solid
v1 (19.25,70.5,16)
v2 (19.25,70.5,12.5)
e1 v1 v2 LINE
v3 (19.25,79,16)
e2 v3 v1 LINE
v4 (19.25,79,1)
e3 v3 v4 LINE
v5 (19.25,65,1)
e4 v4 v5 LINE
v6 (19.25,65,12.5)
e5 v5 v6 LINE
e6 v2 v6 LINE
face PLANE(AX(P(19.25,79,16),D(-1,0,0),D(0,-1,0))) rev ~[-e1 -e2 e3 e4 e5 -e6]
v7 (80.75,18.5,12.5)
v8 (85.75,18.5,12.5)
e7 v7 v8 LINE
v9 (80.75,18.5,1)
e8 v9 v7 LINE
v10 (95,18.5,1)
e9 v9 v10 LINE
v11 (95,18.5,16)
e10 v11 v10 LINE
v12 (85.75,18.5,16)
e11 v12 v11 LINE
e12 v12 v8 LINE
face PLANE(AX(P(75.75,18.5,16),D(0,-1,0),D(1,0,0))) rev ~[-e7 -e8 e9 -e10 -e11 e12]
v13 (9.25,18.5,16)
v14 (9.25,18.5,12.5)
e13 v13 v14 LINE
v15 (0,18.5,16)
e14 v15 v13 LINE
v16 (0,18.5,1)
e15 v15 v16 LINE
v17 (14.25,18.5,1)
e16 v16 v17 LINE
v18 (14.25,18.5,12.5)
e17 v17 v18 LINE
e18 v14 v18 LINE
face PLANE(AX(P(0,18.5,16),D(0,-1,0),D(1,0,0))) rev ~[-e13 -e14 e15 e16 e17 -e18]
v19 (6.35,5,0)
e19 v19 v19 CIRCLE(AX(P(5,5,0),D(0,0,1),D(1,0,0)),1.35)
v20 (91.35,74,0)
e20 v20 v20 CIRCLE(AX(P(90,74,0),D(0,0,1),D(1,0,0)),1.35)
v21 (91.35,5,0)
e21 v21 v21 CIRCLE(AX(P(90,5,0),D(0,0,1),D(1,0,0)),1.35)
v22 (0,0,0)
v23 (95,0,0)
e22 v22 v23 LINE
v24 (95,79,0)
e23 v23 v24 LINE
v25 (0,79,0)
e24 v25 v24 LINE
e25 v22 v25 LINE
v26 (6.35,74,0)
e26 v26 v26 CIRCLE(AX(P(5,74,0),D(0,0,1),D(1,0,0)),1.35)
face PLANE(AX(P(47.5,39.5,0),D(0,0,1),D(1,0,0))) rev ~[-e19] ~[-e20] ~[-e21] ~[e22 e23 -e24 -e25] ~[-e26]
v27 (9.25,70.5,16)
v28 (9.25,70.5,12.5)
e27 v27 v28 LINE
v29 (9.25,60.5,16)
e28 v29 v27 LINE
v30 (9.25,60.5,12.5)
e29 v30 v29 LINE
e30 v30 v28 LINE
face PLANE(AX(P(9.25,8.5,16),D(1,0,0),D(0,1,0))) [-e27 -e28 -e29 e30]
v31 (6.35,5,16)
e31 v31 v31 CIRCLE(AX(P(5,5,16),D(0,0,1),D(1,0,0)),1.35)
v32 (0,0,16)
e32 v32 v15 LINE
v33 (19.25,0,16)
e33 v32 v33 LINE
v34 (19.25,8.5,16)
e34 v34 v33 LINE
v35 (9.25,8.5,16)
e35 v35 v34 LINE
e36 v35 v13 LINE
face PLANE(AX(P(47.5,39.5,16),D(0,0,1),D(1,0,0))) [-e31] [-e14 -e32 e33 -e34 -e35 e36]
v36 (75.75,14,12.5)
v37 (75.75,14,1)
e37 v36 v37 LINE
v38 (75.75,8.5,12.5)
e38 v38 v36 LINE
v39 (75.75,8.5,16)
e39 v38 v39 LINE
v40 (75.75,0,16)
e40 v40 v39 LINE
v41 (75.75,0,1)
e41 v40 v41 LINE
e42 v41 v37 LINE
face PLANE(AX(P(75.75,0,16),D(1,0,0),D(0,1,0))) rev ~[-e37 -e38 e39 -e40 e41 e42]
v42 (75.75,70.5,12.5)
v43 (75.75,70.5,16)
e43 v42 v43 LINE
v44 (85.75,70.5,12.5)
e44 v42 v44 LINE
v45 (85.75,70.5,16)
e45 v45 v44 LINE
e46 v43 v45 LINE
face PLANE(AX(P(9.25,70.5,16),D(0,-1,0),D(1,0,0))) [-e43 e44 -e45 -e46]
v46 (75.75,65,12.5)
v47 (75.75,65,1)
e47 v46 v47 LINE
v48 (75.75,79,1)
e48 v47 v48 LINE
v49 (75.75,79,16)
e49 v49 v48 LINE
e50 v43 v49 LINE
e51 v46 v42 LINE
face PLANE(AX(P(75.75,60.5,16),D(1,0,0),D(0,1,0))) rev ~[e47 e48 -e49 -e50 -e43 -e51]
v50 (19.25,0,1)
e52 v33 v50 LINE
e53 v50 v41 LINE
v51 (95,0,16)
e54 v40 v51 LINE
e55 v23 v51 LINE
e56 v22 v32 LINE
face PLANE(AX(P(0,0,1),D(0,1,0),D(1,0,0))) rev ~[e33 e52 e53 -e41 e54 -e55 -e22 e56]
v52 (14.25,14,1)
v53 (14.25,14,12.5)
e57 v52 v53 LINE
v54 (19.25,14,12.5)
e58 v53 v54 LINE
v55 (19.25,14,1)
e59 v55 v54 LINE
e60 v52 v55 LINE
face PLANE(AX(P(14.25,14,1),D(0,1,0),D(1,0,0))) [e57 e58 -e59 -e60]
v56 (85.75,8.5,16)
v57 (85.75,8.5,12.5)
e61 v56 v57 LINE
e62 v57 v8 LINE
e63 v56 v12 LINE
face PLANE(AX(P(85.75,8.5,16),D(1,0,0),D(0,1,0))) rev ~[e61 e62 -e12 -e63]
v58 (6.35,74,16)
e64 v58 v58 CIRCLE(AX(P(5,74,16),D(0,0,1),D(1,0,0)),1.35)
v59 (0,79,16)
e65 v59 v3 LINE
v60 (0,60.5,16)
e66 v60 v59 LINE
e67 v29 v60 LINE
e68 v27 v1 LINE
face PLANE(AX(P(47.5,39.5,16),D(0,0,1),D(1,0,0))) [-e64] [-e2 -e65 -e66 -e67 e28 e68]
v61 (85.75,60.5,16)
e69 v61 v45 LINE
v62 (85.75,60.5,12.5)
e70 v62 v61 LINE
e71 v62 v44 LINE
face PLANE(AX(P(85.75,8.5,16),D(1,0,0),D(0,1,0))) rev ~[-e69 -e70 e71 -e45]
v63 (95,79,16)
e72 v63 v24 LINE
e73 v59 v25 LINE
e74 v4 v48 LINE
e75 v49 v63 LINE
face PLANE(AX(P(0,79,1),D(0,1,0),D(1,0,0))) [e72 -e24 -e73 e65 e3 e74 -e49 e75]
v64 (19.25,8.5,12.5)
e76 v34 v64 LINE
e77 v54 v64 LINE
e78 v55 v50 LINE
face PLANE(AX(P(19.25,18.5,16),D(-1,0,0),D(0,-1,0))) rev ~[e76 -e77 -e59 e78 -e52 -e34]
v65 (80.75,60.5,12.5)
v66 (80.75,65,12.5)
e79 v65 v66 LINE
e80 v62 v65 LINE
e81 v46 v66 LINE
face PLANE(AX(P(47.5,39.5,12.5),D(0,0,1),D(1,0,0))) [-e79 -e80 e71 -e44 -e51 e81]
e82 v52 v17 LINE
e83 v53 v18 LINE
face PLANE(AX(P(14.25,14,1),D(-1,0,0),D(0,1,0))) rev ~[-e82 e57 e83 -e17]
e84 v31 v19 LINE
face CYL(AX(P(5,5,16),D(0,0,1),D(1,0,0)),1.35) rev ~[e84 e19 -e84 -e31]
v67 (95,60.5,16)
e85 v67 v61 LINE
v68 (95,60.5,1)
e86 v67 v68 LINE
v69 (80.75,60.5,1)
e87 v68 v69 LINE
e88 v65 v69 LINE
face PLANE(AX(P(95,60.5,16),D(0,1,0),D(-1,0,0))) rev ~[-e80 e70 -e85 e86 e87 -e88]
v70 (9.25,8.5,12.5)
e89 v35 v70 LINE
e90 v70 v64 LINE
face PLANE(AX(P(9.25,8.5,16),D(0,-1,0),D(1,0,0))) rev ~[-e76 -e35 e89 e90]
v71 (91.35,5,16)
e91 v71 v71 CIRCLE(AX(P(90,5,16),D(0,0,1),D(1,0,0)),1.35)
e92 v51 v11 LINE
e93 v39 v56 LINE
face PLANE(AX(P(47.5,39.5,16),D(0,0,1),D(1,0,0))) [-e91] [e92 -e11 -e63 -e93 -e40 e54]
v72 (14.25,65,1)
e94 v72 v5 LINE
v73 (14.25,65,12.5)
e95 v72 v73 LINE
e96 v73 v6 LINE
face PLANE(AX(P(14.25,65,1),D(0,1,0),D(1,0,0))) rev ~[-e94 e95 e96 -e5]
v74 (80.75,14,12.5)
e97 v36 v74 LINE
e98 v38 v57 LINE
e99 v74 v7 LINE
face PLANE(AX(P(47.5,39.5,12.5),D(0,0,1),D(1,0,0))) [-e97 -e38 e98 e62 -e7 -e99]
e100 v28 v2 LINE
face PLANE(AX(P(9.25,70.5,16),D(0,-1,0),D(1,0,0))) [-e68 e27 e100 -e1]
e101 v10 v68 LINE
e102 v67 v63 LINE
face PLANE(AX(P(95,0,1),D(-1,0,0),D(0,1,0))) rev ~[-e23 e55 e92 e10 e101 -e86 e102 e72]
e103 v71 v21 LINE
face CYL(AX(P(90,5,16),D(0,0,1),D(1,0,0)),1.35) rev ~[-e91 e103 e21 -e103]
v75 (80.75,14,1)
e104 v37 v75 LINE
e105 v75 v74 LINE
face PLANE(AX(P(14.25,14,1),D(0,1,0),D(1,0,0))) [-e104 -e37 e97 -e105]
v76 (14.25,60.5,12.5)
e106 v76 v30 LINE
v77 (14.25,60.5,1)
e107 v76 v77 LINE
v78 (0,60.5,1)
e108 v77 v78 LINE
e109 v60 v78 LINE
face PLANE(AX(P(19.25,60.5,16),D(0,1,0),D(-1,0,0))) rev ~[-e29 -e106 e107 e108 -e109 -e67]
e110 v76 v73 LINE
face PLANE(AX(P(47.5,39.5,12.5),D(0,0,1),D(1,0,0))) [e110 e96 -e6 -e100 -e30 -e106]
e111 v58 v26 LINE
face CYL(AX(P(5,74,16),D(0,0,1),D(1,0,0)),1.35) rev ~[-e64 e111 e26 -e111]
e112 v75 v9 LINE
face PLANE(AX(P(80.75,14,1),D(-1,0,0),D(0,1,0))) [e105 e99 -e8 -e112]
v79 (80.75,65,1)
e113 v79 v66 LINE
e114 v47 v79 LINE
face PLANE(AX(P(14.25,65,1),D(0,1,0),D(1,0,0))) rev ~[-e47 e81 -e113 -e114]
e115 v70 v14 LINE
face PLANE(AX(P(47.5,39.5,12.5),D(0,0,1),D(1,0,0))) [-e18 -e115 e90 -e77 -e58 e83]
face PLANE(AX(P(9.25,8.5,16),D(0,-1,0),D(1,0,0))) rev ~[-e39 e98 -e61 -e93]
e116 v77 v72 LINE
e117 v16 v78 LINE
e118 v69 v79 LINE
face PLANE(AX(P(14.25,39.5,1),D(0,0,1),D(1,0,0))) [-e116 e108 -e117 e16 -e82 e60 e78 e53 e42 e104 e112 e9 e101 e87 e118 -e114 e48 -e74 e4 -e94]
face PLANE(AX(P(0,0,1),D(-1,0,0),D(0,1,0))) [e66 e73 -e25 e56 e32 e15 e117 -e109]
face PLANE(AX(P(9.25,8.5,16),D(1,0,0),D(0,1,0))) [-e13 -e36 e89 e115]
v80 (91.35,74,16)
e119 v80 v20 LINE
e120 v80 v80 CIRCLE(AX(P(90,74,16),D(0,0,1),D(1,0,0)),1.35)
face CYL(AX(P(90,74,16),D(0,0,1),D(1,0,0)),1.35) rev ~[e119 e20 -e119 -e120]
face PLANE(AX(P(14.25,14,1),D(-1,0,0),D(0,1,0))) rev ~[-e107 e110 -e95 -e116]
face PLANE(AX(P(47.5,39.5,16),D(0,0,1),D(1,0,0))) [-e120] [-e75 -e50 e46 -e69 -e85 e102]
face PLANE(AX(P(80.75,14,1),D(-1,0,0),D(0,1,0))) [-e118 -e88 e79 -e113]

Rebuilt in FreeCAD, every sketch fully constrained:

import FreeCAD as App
import Part
import Sketcher
from FreeCAD import Vector
Q = App.Units.Quantity


def add_polygon(sketch, points):
    """Adds a closed chain of lines whose ends are joined by coincident constraints."""
    first, n = sketch.GeometryCount, len(points)
    for a, b in zip(points, points[1:] + points[:1]):
        sketch.addGeometry(Part.LineSegment(App.Vector(*a, 0), App.Vector(*b, 0)), False)
    for i in range(n):
        sketch.addConstraint(Sketcher.Constraint("Coincident", first + i, 2, first + (i + 1) % n, 1))

doc = App.newDocument("Part")
body = doc.addObject("PartDesign::Body", "Body")

sketch1 = body.newObject("Sketcher::SketchObject", "Sketch")
sketch1.AttachmentSupport = (doc.getObject("XY_Plane"), [""])
sketch1.MapMode = "FlatFace"
add_polygon(sketch1, [(0, 79), (0, 0), (95, 0), (95, 79)])
sketch1.addConstraint(Sketcher.Constraint("Vertical", 0))
sketch1.addConstraint(Sketcher.Constraint("Horizontal", 1))
sketch1.addConstraint(Sketcher.Constraint("Vertical", 2))
sketch1.addConstraint(Sketcher.Constraint("Horizontal", 3))
sketch1.addConstraint(Sketcher.Constraint("Coincident", 0, 2, -1, 1))
sketch1.addConstraint(Sketcher.Constraint("DistanceX", 1, 1, 1, 2, Q("95 mm")))
sketch1.addConstraint(Sketcher.Constraint("DistanceY", 0, 2, 0, 1, Q("79 mm")))
pad1 = body.newObject("PartDesign::Pad", "Pad")
pad1.Profile = sketch1
pad1.Length = 1

sketch2 = body.newObject("Sketcher::SketchObject", "Sketch001")
sketch2.AttachmentSupport = (doc.getObject("XY_Plane"), [""])
sketch2.MapMode = "FlatFace"
sketch2.AttachmentOffset = App.Placement(Vector(0, 0, 1), App.Rotation())
add_polygon(sketch2, [(0, 79), (0, 0), (95, 0), (95, 79)])
add_polygon(sketch2, [(81, 14), (14, 14), (14, 65), (81, 65)])
sketch2.addConstraint(Sketcher.Constraint("Vertical", 0))
sketch2.addConstraint(Sketcher.Constraint("Horizontal", 1))
sketch2.addConstraint(Sketcher.Constraint("Vertical", 2))
sketch2.addConstraint(Sketcher.Constraint("Horizontal", 3))
sketch2.addConstraint(Sketcher.Constraint("Horizontal", 4))
sketch2.addConstraint(Sketcher.Constraint("Vertical", 5))
sketch2.addConstraint(Sketcher.Constraint("Horizontal", 6))
sketch2.addConstraint(Sketcher.Constraint("Vertical", 7))
sketch2.addConstraint(Sketcher.Constraint("Coincident", 0, 2, -1, 1))
sketch2.addConstraint(Sketcher.Constraint("DistanceX", 1, 1, 1, 2, Q("95 mm")))
sketch2.addConstraint(Sketcher.Constraint("DistanceY", 0, 2, 0, 1, Q("79 mm")))
sketch2.addConstraint(Sketcher.Constraint("DistanceY", 5, 1, 5, 2, Q("51 mm")))
sketch2.addConstraint(Sketcher.Constraint("DistanceX", 4, 2, 4, 1, Q("66.5 mm")))
sketch2.addConstraint(Sketcher.Constraint("DistanceY", -1, 1, 4, 2, Q("14 mm")))
sketch2.addConstraint(Sketcher.Constraint("DistanceX", -1, 1, 4, 2, Q("14.25 mm")))
pad2 = body.newObject("PartDesign::Pad", "Pad001")
pad2.Profile = sketch2
pad2.Length = 15

sketch3 = body.newObject("Sketcher::SketchObject", "Sketch002")
sketch3.AttachmentSupport = (doc.getObject("XY_Plane"), [""])
sketch3.MapMode = "FlatFace"
sketch3.AttachmentOffset = App.Placement(Vector(0, 0, 16), App.Rotation())
add_polygon(sketch3, [(9, 70), (9, 8), (86, 8), (86, 70)])
add_polygon(sketch3, [(81, 14), (14, 14), (14, 65), (81, 65)])
sketch3.addConstraint(Sketcher.Constraint("Vertical", 0))
sketch3.addConstraint(Sketcher.Constraint("Horizontal", 1))
sketch3.addConstraint(Sketcher.Constraint("Vertical", 2))
sketch3.addConstraint(Sketcher.Constraint("Horizontal", 3))
sketch3.addConstraint(Sketcher.Constraint("Horizontal", 4))
sketch3.addConstraint(Sketcher.Constraint("Vertical", 5))
sketch3.addConstraint(Sketcher.Constraint("Horizontal", 6))
sketch3.addConstraint(Sketcher.Constraint("Vertical", 7))
sketch3.addConstraint(Sketcher.Constraint("DistanceY", 0, 2, 0, 1, Q("62 mm")))
sketch3.addConstraint(Sketcher.Constraint("DistanceY", 5, 1, 5, 2, Q("51 mm")))
sketch3.addConstraint(Sketcher.Constraint("DistanceX", 1, 1, 1, 2, Q("76.5 mm")))
sketch3.addConstraint(Sketcher.Constraint("DistanceX", 4, 2, 4, 1, Q("66.5 mm")))
sketch3.addConstraint(Sketcher.Constraint("DistanceY", -1, 1, 4, 2, Q("14 mm")))
sketch3.addConstraint(Sketcher.Constraint("DistanceX", 0, 2, 4, 2, Q("5 mm")))
sketch3.addConstraint(Sketcher.Constraint("DistanceY", -1, 1, 0, 2, Q("8.5 mm")))
sketch3.addConstraint(Sketcher.Constraint("DistanceX", -1, 1, 0, 2, Q("9.25 mm")))
pocket1 = body.newObject("PartDesign::Pocket", "Pocket")
pocket1.Profile = sketch3
pocket1.Length = 3.5

sketch4 = body.newObject("Sketcher::SketchObject", "Sketch003")
sketch4.AttachmentSupport = (doc.getObject("XY_Plane"), [""])
sketch4.MapMode = "FlatFace"
sketch4.AttachmentOffset = App.Placement(Vector(0, 0, 16), App.Rotation())
add_polygon(sketch4, [(19, 79), (19, 60), (76, 60), (76, 79)])
add_polygon(sketch4, [(19, 18), (19, 60), (0, 60), (0, 18)])
add_polygon(sketch4, [(95, 18), (95, 60), (76, 60), (76, 18)])
add_polygon(sketch4, [(19, 0), (76, 0), (76, 18), (19, 18)])
sketch4.addConstraint(Sketcher.Constraint("Vertical", 0))
sketch4.addConstraint(Sketcher.Constraint("Horizontal", 1))
sketch4.addConstraint(Sketcher.Constraint("Vertical", 2))
sketch4.addConstraint(Sketcher.Constraint("Horizontal", 3))
sketch4.addConstraint(Sketcher.Constraint("Vertical", 4))
sketch4.addConstraint(Sketcher.Constraint("Horizontal", 5))
sketch4.addConstraint(Sketcher.Constraint("Vertical", 6))
sketch4.addConstraint(Sketcher.Constraint("Horizontal", 7))
sketch4.addConstraint(Sketcher.Constraint("Vertical", 8))
sketch4.addConstraint(Sketcher.Constraint("Horizontal", 9))
sketch4.addConstraint(Sketcher.Constraint("Vertical", 10))
sketch4.addConstraint(Sketcher.Constraint("Horizontal", 11))
sketch4.addConstraint(Sketcher.Constraint("Horizontal", 12))
sketch4.addConstraint(Sketcher.Constraint("Vertical", 13))
sketch4.addConstraint(Sketcher.Constraint("Horizontal", 14))
sketch4.addConstraint(Sketcher.Constraint("Vertical", 15))
sketch4.addConstraint(Sketcher.Constraint("Coincident", 4, 2, 0, 2))
sketch4.addConstraint(Sketcher.Constraint("Coincident", 9, 2, 1, 2))
sketch4.addConstraint(Sketcher.Constraint("Coincident", 13, 2, 10, 2))
sketch4.addConstraint(Sketcher.Constraint("Coincident", 14, 2, 7, 2))
sketch4.addConstraint(Sketcher.Constraint("PointOnObject", 5, 2, -2))
sketch4.addConstraint(Sketcher.Constraint("PointOnObject", 12, 2, -1))
sketch4.addConstraint(Sketcher.Constraint("Equal", 7, 9))
sketch4.addConstraint(Sketcher.Constraint("Equal", 2, 13))
sketch4.addConstraint(Sketcher.Constraint("DistanceY", 4, 1, 4, 2, Q("42 mm")))
sketch4.addConstraint(Sketcher.Constraint("DistanceX", 1, 1, 1, 2, Q("56.5 mm")))
sketch4.addConstraint(Sketcher.Constraint("DistanceY", 0, 2, 0, 1, Q("18.5 mm")))
sketch4.addConstraint(Sketcher.Constraint("DistanceX", -1, 1, 8, 2, Q("95 mm")))
pocket2 = body.newObject("PartDesign::Pocket", "Pocket001")
pocket2.Profile = sketch4
pocket2.Length = 15

sketch5 = body.newObject("Sketcher::SketchObject", "Sketch004")
sketch5.AttachmentSupport = (doc.getObject("XY_Plane"), [""])
sketch5.MapMode = "FlatFace"
sketch5.AttachmentOffset = App.Placement(Vector(0, 0, 16), App.Rotation())
sketch5.addGeometry(Part.Circle(Vector(5, 74, 0), Vector(0, 0, 1), 1.4), False)
sketch5.addGeometry(Part.Circle(Vector(5, 5, 0), Vector(0, 0, 1), 1.4), False)
sketch5.addGeometry(Part.Circle(Vector(90, 5, 0), Vector(0, 0, 1), 1.4), False)
sketch5.addGeometry(Part.Circle(Vector(90, 74, 0), Vector(0, 0, 1), 1.4), False)
sketch5.addConstraint(Sketcher.Constraint("Equal", 0, 1))
sketch5.addConstraint(Sketcher.Constraint("Equal", 1, 2))
sketch5.addConstraint(Sketcher.Constraint("Equal", 2, 3))
sketch5.addConstraint(Sketcher.Constraint("Horizontal", 1, 3, 2, 3))
sketch5.addConstraint(Sketcher.Constraint("Horizontal", 0, 3, 3, 3))
sketch5.addConstraint(Sketcher.Constraint("Vertical", 0, 3, 1, 3))
sketch5.addConstraint(Sketcher.Constraint("Vertical", 2, 3, 3, 3))
sketch5.addConstraint(Sketcher.Constraint("Diameter", 0, Q("2.7 mm")))
sketch5.addConstraint(Sketcher.Constraint("DistanceX", -1, 1, 0, 3, Q("5 mm")))
sketch5.addConstraint(Sketcher.Constraint("DistanceY", -1, 1, 0, 3, Q("74 mm")))
sketch5.addConstraint(Sketcher.Constraint("DistanceY", -1, 1, 1, 3, Q("5 mm")))
sketch5.addConstraint(Sketcher.Constraint("DistanceX", -1, 1, 2, 3, Q("90 mm")))
pocket3 = body.newObject("PartDesign::Pocket", "Pocket002")
pocket3.Profile = sketch5
pocket3.Type = "ThroughAll"

doc.recompute()
